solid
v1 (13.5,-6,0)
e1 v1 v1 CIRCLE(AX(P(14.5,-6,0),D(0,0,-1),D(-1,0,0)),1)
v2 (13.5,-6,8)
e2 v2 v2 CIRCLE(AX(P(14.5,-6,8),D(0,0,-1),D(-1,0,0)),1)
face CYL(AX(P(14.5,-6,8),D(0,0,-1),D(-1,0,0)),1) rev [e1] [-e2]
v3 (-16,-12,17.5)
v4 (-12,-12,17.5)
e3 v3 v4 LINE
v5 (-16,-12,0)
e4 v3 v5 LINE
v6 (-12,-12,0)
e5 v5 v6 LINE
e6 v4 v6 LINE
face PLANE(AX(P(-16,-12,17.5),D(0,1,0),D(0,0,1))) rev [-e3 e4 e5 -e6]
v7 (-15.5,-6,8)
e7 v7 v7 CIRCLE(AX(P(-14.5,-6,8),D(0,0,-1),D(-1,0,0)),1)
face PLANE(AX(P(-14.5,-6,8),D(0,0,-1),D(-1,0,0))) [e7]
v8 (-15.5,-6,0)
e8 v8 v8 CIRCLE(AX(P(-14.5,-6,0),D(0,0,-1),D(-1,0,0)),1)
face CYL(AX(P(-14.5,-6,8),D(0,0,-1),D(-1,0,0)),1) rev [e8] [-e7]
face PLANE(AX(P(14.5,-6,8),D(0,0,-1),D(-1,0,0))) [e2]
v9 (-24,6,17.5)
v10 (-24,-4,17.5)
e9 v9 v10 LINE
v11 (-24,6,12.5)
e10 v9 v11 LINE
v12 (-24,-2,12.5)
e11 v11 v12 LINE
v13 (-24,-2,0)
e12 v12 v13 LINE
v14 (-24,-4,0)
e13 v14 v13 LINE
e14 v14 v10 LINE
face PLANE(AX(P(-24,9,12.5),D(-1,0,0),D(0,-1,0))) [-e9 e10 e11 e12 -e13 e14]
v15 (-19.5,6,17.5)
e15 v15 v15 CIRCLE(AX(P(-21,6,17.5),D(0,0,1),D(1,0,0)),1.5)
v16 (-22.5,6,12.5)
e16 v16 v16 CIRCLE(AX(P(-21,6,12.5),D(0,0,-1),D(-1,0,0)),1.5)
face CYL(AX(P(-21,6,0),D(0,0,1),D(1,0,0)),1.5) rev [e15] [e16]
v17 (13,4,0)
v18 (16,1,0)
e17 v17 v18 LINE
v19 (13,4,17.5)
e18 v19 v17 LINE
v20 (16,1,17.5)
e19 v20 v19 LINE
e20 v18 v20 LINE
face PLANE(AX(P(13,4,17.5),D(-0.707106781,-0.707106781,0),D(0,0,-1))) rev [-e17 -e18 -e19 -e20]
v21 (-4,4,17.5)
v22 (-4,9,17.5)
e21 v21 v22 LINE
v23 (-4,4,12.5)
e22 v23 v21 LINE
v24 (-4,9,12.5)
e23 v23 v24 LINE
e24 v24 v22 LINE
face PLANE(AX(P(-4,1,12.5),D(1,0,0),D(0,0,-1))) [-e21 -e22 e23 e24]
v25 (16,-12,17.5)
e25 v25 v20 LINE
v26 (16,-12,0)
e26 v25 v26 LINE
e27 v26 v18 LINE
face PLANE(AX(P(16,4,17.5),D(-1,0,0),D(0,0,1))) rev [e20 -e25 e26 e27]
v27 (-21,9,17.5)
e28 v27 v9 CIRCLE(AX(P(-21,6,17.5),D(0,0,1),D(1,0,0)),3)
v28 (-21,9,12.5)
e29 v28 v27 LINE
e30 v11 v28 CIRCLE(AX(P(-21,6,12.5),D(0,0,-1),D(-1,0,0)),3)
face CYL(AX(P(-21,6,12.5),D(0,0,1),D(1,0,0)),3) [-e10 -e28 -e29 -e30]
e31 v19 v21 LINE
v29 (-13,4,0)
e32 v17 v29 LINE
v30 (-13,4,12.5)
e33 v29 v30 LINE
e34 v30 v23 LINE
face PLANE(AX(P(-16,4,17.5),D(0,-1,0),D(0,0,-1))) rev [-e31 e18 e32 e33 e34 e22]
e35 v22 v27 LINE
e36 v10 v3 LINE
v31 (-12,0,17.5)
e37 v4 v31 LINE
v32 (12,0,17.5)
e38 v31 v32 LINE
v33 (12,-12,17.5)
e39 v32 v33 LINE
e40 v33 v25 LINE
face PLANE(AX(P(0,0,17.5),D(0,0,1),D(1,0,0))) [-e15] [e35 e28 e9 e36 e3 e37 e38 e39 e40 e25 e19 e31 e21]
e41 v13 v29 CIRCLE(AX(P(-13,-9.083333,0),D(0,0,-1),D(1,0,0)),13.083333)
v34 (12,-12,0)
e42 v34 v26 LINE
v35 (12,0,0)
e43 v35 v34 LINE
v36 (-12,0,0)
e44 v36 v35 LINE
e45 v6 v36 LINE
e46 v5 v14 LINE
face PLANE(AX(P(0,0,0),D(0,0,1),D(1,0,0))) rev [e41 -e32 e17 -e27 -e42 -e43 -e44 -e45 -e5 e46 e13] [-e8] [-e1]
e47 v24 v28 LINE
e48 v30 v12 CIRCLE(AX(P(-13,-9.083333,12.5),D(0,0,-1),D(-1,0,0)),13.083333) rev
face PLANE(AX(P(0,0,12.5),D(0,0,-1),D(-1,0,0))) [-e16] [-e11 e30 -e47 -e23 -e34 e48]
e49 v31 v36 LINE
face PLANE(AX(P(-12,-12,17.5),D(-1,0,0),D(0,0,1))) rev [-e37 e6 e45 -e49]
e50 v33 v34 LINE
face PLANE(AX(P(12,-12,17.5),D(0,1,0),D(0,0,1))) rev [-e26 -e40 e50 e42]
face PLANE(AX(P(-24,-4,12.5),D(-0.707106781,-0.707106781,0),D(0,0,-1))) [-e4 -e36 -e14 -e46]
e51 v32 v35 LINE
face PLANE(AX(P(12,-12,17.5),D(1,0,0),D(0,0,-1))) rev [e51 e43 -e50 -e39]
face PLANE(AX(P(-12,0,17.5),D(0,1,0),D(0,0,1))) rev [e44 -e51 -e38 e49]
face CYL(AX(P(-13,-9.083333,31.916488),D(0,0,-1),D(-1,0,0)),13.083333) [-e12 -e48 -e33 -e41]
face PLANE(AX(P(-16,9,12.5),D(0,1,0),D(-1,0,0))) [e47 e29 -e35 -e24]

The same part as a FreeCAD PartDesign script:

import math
import FreeCAD as App
import Part
import Sketcher
from FreeCAD import Vector
Q = App.Units.Quantity


def edges_at(feature, points):
    """Names of the edges that pass closest to the given points."""
    edges = feature.Shape.Edges
    near = lambda p: min(range(len(edges)), key=lambda i: edges[i].distToShape(Part.Vertex(*p))[0])
    return sorted({f"Edge{near(p) + 1}" for p in points})


def add_polygon(sketch, points):
    """Adds a closed chain of lines whose ends are joined by coincident constraints."""
    first, n = sketch.GeometryCount, len(points)
    for a, b in zip(points, points[1:] + points[:1]):
        sketch.addGeometry(Part.LineSegment(App.Vector(*a, 0), App.Vector(*b, 0)), False)
    for i in range(n):
        sketch.addConstraint(Sketcher.Constraint("Coincident", first + i, 2, first + (i + 1) % n, 1))

doc = App.newDocument("Part")
body = doc.addObject("PartDesign::Body", "Body")

sketch1 = body.newObject("Sketcher::SketchObject", "Sketch")
sketch1.AttachmentSupport = (doc.getObject("XY_Plane"), [""])
sketch1.MapMode = "FlatFace"
add_polygon(sketch1, [(12, -12), (16, -12), (16, 4), (-16, 4), (-16, -12), (-12, -12), (-12, 0), (12, 0)])
sketch1.addConstraint(Sketcher.Constraint("Horizontal", 0))
sketch1.addConstraint(Sketcher.Constraint("Vertical", 1))
sketch1.addConstraint(Sketcher.Constraint("Horizontal", 2))
sketch1.addConstraint(Sketcher.Constraint("Vertical", 3))
sketch1.addConstraint(Sketcher.Constraint("Horizontal", 4))
sketch1.addConstraint(Sketcher.Constraint("Vertical", 5))
sketch1.addConstraint(Sketcher.Constraint("Horizontal", 6))
sketch1.addConstraint(Sketcher.Constraint("Vertical", 7))
sketch1.addConstraint(Sketcher.Constraint("Symmetric", 5, 2, 6, 2, -1, 1))
sketch1.addConstraint(Sketcher.Constraint("Symmetric", 0, 2, 3, 2, -2))
sketch1.addConstraint(Sketcher.Constraint("DistanceX", 0, 1, 0, 2, Q("4 mm")))
sketch1.addConstraint(Sketcher.Constraint("DistanceX", 2, 2, 2, 1, Q("32 mm")))
sketch1.addConstraint(Sketcher.Constraint("DistanceY", 1, 1, 1, 2, Q("16 mm")))
sketch1.addConstraint(Sketcher.Constraint("DistanceY", 5, 1, 5, 2, Q("12 mm")))
pad1 = body.newObject("PartDesign::Pad", "Pad")
pad1.Profile = sketch1
pad1.Length = 17.5
doc.recompute()

chamfer = body.newObject("PartDesign::Chamfer", "Chamfer")
chamfer.Base = (pad1, edges_at(pad1, [(-16, 4, 8.75), (16, 4, 8.75)]))
chamfer.Size = 3

sketch2 = body.newObject("Sketcher::SketchObject", "Sketch001")
sketch2.AttachmentSupport = (doc.getObject("XY_Plane"), [""])
sketch2.MapMode = "FlatFace"
sketch2.AttachmentOffset = App.Placement(Vector(0, 0, 17.5), App.Rotation())
add_polygon(sketch2, [(-16, 1), (-4, 1), (-4, 9), (-24, 9), (-24, -12), (-16, -12)])
sketch2.addConstraint(Sketcher.Constraint("Horizontal", 0))
sketch2.addConstraint(Sketcher.Constraint("Vertical", 1))
sketch2.addConstraint(Sketcher.Constraint("Horizontal", 2))
sketch2.addConstraint(Sketcher.Constraint("Vertical", 3))
sketch2.addConstraint(Sketcher.Constraint("Horizontal", 4))
sketch2.addConstraint(Sketcher.Constraint("Vertical", 5))
sketch2.addConstraint(Sketcher.Constraint("Equal", 4, 1))
sketch2.addConstraint(Sketcher.Constraint("DistanceX", 0, 1, 0, 2, Q("12 mm")))
sketch2.addConstraint(Sketcher.Constraint("DistanceX", 2, 2, 2, 1, Q("20 mm")))
sketch2.addConstraint(Sketcher.Constraint("DistanceY", 3, 2, 3, 1, Q("21 mm")))
sketch2.addConstraint(Sketcher.Constraint("DistanceX", 0, 2, -1, 1, Q("4 mm")))
sketch2.addConstraint(Sketcher.Constraint("DistanceY", -1, 1, 0, 2, Q("1 mm")))
pad2 = body.newObject("PartDesign::Pad", "Pad001")
pad2.Profile = sketch2
pad2.Length = 5
pad2.Reversed = True
doc.recompute()

chamfer2 = body.newObject("PartDesign::Chamfer", "Chamfer001")
chamfer2.Base = (pad2, edges_at(pad2, [(-24, -12, 15)]))
chamfer2.Size = 8

sketch3 = body.newObject("Sketcher::SketchObject", "Sketch002")
sketch3.AttachmentSupport = (doc.getObject("XY_Plane"), [""])
sketch3.MapMode = "FlatFace"
sketch3.AttachmentOffset = App.Placement(Vector(0, 0, 17.5), App.Rotation())
sketch3.addGeometry(Part.Circle(Vector(-21, 6, 0), Vector(0, 0, 1), 1.5), False)
sketch3.addConstraint(Sketcher.Constraint("Diameter", 0, Q("3 mm")))
sketch3.addConstraint(Sketcher.Constraint("DistanceX", 0, 3, -1, 1, Q("21 mm")))
sketch3.addConstraint(Sketcher.Constraint("DistanceY", -1, 1, 0, 3, Q("6 mm")))
pocket1 = body.newObject("PartDesign::Pocket", "Pocket")
pocket1.Profile = sketch3
pocket1.Type = "ThroughAll"
doc.recompute()

fillet = body.newObject("PartDesign::Fillet", "Fillet")
fillet.Base = (pocket1, edges_at(pocket1, [(-24, 9, 15)]))
fillet.Radius = 3

sketch4 = body.newObject("Sketcher::SketchObject", "Sketch003")
sketch4.AttachmentSupport = (doc.getObject("XY_Plane"), [""])
sketch4.MapMode = "FlatFace"
sketch4.addGeometry(Part.Circle(Vector(14.5, -6, 0), Vector(0, 0, 1), 1), False)
sketch4.addGeometry(Part.Circle(Vector(-14.5, -6, 0), Vector(0, 0, 1), 1), False)
sketch4.addConstraint(Sketcher.Constraint("Equal", 0, 1))
sketch4.addConstraint(Sketcher.Constraint("Symmetric", 0, 3, 1, 3, -2))
sketch4.addConstraint(Sketcher.Constraint("Diameter", 0, Q("2 mm")))
sketch4.addConstraint(Sketcher.Constraint("DistanceY", 0, 3, -1, 1, Q("6 mm")))
sketch4.addConstraint(Sketcher.Constraint("DistanceX", 1, 3, 0, 3, Q("29 mm")))
pocket2 = body.newObject("PartDesign::Pocket", "Pocket001")
pocket2.Profile = sketch4
pocket2.Length = 8
pocket2.Reversed = True

sketch5 = body.newObject("Sketcher::SketchObject", "Sketch004")
sketch5.AttachmentSupport = (doc.getObject("XY_Plane"), [""])
sketch5.MapMode = "FlatFace"
sketch5.addGeometry(Part.LineSegment(Vector(-13, 4, 0), Vector(-16, 1, 0)), False)
sketch5.addGeometry(Part.LineSegment(Vector(-16, 1, 0), Vector(-16, -12, 0)), False)
sketch5.addGeometry(Part.LineSegment(Vector(-16, -12, 0), Vector(-24, -4, 0)), False)
sketch5.addGeometry(Part.LineSegment(Vector(-24, -4, 0), Vector(-24, -2, 0)), False)
sketch5.addGeometry(Part.ArcOfCircle(Part.Circle(Vector(-13, -9.1, 0), Vector(0, 0, 1), 13.1), math.radians(90), math.radians(147)), False)
sketch5.addConstraint(Sketcher.Constraint("Coincident", 0, 2, 1, 1))
sketch5.addConstraint(Sketcher.Constraint("Coincident", 1, 2, 2, 1))
sketch5.addConstraint(Sketcher.Constraint("Coincident", 2, 2, 3, 1))
sketch5.addConstraint(Sketcher.Constraint("Coincident", 3, 2, 4, 2))
sketch5.addConstraint(Sketcher.Constraint("Coincident", 4, 1, 0, 1))
sketch5.addConstraint(Sketcher.Constraint("Vertical", 1))
sketch5.addConstraint(Sketcher.Constraint("Vertical", 3))
sketch5.addConstraint(Sketcher.Constraint("Perpendicular", 0, 2))
sketch5.addConstraint(Sketcher.Constraint("DistanceY", 1, 2, 1, 1, Q("13 mm")))
sketch5.addConstraint(Sketcher.Constraint("DistanceY", 3, 1, 3, 2, Q("2 mm")))
sketch5.addConstraint(Sketcher.Constraint("Angle", 0, Q("-135 deg")))
sketch5.addConstraint(Sketcher.Constraint("DistanceX", 4, 3, -1, 1, Q("13 mm")))
sketch5.addConstraint(Sketcher.Constraint("DistanceX", 0, 2, -1, 1, Q("16 mm")))
sketch5.addConstraint(Sketcher.Constraint("DistanceY", -1, 1, 0, 2, Q("1 mm")))
sketch5.addConstraint(Sketcher.Constraint("DistanceX", 2, 2, -1, 1, Q("24 mm")))
sketch5.addConstraint(Sketcher.Constraint("DistanceX", 4, 1, -1, 1, Q("13 mm")))
pad3 = body.newObject("PartDesign::Pad", "Pad002")
pad3.Profile = sketch5
pad3.Length = 12.5

doc.recompute()
